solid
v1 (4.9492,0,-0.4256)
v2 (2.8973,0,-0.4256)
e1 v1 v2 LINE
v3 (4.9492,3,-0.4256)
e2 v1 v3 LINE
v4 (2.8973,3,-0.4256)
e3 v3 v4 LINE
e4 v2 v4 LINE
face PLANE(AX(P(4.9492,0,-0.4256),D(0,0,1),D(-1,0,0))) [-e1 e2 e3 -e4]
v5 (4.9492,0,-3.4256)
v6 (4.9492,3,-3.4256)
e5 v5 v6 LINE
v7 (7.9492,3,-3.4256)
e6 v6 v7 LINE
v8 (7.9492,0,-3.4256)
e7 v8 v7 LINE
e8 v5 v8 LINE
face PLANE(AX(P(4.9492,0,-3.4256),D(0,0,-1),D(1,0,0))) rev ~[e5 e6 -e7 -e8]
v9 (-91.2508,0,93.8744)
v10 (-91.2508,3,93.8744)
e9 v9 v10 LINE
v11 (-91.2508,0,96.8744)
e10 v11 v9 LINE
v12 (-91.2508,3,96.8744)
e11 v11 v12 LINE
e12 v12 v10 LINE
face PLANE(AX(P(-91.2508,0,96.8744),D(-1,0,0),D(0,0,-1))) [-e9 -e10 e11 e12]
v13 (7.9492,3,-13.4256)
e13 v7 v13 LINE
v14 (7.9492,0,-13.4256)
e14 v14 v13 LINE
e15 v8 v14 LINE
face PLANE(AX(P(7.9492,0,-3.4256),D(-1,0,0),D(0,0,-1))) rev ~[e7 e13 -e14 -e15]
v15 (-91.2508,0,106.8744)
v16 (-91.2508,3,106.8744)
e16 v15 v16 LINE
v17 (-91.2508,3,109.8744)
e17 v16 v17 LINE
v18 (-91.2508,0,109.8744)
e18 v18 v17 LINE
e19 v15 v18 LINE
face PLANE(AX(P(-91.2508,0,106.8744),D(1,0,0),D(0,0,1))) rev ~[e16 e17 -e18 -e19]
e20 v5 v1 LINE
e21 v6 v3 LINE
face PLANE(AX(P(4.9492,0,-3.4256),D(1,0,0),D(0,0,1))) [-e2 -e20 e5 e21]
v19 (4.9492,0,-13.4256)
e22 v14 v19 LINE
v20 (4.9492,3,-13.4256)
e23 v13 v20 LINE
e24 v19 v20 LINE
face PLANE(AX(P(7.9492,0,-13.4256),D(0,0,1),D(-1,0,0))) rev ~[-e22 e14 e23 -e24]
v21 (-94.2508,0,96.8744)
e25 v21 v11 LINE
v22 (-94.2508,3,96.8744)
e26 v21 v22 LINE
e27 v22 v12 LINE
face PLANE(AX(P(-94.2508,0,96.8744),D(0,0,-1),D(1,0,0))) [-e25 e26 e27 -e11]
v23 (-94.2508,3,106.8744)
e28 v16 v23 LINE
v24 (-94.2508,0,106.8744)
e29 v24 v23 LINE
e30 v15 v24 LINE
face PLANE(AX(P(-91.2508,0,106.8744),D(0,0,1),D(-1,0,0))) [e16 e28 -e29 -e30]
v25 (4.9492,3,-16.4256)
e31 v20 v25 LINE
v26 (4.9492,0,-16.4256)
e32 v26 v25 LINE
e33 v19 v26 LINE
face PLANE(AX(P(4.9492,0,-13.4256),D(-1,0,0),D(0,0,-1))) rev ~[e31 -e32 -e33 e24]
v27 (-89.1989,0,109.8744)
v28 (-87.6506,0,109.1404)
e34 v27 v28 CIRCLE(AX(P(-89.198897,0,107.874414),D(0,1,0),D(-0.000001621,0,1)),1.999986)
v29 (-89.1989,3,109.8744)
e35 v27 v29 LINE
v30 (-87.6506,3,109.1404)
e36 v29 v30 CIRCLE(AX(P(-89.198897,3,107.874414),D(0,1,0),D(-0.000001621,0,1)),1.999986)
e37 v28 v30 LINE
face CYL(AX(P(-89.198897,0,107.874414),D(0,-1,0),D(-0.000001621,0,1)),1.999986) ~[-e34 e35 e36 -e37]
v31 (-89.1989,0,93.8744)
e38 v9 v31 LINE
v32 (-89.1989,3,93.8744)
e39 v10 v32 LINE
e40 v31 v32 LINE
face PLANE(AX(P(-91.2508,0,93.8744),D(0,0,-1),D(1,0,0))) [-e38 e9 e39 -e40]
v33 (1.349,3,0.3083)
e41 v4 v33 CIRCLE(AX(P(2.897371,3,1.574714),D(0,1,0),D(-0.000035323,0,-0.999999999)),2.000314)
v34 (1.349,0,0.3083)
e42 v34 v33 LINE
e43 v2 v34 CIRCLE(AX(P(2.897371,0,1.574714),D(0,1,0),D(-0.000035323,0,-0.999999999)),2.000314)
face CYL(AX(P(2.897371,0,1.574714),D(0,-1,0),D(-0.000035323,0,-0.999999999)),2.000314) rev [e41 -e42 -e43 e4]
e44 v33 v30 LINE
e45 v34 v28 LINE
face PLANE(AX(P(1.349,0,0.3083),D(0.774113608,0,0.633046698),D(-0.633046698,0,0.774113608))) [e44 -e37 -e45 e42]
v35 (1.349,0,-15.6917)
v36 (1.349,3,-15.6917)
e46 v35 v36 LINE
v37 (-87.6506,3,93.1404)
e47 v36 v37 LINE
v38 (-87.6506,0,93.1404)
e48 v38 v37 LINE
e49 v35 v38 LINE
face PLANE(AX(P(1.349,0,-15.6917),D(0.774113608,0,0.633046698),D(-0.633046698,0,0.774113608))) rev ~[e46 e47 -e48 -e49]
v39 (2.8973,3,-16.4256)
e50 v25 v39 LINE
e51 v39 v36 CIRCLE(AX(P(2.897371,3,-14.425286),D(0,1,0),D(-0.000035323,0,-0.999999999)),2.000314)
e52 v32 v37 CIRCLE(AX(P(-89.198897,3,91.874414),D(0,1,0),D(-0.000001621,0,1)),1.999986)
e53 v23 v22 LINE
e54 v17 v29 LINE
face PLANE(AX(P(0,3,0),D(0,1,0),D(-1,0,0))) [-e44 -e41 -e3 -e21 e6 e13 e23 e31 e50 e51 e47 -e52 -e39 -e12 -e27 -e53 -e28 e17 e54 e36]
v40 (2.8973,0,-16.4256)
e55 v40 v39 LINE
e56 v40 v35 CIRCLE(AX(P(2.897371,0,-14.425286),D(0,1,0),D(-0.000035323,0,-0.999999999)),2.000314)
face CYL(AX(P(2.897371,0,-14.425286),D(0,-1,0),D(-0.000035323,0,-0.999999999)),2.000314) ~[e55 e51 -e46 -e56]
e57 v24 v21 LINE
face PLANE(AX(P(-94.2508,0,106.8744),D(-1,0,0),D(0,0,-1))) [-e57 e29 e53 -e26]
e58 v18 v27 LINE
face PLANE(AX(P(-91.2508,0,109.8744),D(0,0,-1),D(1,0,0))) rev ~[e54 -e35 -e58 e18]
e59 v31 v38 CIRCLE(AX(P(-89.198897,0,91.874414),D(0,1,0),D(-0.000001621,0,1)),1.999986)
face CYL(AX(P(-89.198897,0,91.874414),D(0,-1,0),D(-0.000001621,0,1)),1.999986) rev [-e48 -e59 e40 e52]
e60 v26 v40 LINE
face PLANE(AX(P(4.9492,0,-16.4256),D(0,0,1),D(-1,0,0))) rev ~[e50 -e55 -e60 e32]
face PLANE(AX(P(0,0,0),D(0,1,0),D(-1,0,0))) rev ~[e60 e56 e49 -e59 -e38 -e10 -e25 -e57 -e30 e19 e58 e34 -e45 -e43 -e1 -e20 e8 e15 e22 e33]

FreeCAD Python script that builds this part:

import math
import FreeCAD as App
import Part
import Sketcher
from FreeCAD import Vector
Q = App.Units.Quantity

doc = App.newDocument("Part")
body = doc.addObject("PartDesign::Body", "Body")

# Sketch on XZ plane
sketch1 = body.newObject("Sketcher::SketchObject", "Sketch")
sketch1.AttachmentSupport = (doc.getObject("XZ_Plane"), [""])
sketch1.MapMode = "FlatFace"
sketch1.addGeometry([
    Part.LineSegment(Vector(4.9, -0.4, 0), Vector(4.9, -3.4, 0)),  # 0
    Part.LineSegment(Vector(4.9, -3.4, 0), Vector(7.9, -3.4, 0)),  # 1
    Part.LineSegment(Vector(7.9, -3.4, 0), Vector(7.9, -13.4, 0)),  # 2
    Part.LineSegment(Vector(7.9, -13.4, 0), Vector(4.9, -13.4, 0)),  # 3
    Part.LineSegment(Vector(4.9, -13.4, 0), Vector(4.9, -16.4, 0)),  # 4
    Part.LineSegment(Vector(4.9, -16.4, 0), Vector(2.9, -16.4, 0)),  # 5
    Part.ArcOfCircle(Part.Circle(Vector(2.9, -14.4, 0), Vector(0, 0, 1), 2), math.radians(-141), math.radians(-90)),  # 6
    Part.LineSegment(Vector(1.3, -15.7, 0), Vector(-87.7, 93.1, 0)),  # 7
    Part.ArcOfCircle(Part.Circle(Vector(-89.2, 91.9, 0), Vector(0, 0, 1), 2), math.radians(39), math.radians(90)),  # 8
    Part.LineSegment(Vector(-89.2, 93.9, 0), Vector(-91.3, 93.9, 0)),  # 9
    Part.LineSegment(Vector(-91.3, 93.9, 0), Vector(-91.3, 96.9, 0)),  # 10
    Part.LineSegment(Vector(-91.3, 96.9, 0), Vector(-94.3, 96.9, 0)),  # 11
    Part.LineSegment(Vector(-94.3, 96.9, 0), Vector(-94.3, 106.9, 0)),  # 12
    Part.LineSegment(Vector(-94.3, 106.9, 0), Vector(-91.3, 106.9, 0)),  # 13
    Part.LineSegment(Vector(-91.3, 106.9, 0), Vector(-91.3, 109.9, 0)),  # 14
    Part.LineSegment(Vector(-91.3, 109.9, 0), Vector(-89.2, 109.9, 0)),  # 15
    Part.ArcOfCircle(Part.Circle(Vector(-89.2, 107.9, 0), Vector(0, 0, 1), 2), math.radians(39), math.radians(90)),  # 16
    Part.LineSegment(Vector(-87.7, 109.1, 0), Vector(1.3, 0.3, 0)),  # 17
    Part.ArcOfCircle(Part.Circle(Vector(2.9, 1.6, 0), Vector(0, 0, 1), 2), math.radians(-141), math.radians(-90)),  # 18
    Part.LineSegment(Vector(2.9, -0.4, 0), Vector(4.9, -0.4, 0)),  # 19
], False)
sketch1.addConstraint([
    Sketcher.Constraint("Coincident", 0, 2, 1, 1),
    Sketcher.Constraint("Coincident", 1, 2, 2, 1),
    Sketcher.Constraint("Coincident", 2, 2, 3, 1),
    Sketcher.Constraint("Coincident", 3, 2, 4, 1),
    Sketcher.Constraint("Coincident", 4, 2, 5, 1),
    Sketcher.Constraint("Tangent", 5, 2, 6, 2),
    Sketcher.Constraint("Tangent", 6, 1, 7, 1),
    Sketcher.Constraint("Tangent", 7, 2, 8, 1),
    Sketcher.Constraint("Tangent", 8, 2, 9, 1),
    Sketcher.Constraint("Coincident", 9, 2, 10, 1),
    Sketcher.Constraint("Coincident", 10, 2, 11, 1),
    Sketcher.Constraint("Coincident", 11, 2, 12, 1),
    Sketcher.Constraint("Coincident", 12, 2, 13, 1),
    Sketcher.Constraint("Coincident", 13, 2, 14, 1),
    Sketcher.Constraint("Coincident", 14, 2, 15, 1),
    Sketcher.Constraint("Tangent", 15, 2, 16, 2),
    Sketcher.Constraint("Tangent", 16, 1, 17, 1),
    Sketcher.Constraint("Tangent", 17, 2, 18, 1),
    Sketcher.Constraint("Tangent", 18, 2, 19, 1),
    Sketcher.Constraint("Coincident", 19, 2, 0, 1),
    Sketcher.Constraint("Vertical", 0),
    Sketcher.Constraint("Horizontal", 1),
    Sketcher.Constraint("Vertical", 2),
    Sketcher.Constraint("Horizontal", 3),
    Sketcher.Constraint("Vertical", 4),
    Sketcher.Constraint("Horizontal", 5),
    Sketcher.Constraint("Horizontal", 9),
    Sketcher.Constraint("Vertical", 10),
    Sketcher.Constraint("Horizontal", 11),
    Sketcher.Constraint("Vertical", 12),
    Sketcher.Constraint("Horizontal", 13),
    Sketcher.Constraint("Vertical", 14),
    Sketcher.Constraint("Horizontal", 15),
    Sketcher.Constraint("Horizontal", 19),
    Sketcher.Constraint("Equal", 6, 8),
    Sketcher.Constraint("Equal", 8, 16),
    Sketcher.Constraint("Equal", 16, 18),
    Sketcher.Constraint("Parallel", 7, 17),
    Sketcher.Constraint("Vertical", 8, 3, 16, 3),
    Sketcher.Constraint("Vertical", 6, 3, 18, 3),
    Sketcher.Constraint("Vertical", 0, 2, 3, 2),
    Sketcher.Constraint("Vertical", 10, 2, 13, 2),
    Sketcher.Constraint("Equal", 5, 9),
    Sketcher.Constraint("Equal", 3, 11),
    Sketcher.Constraint("Equal", 13, 0),
    Sketcher.Constraint("Equal", 0, 4),
    Sketcher.Constraint("Equal", 4, 10),
    Sketcher.Constraint("Equal", 2, 12),
    Sketcher.Constraint("Radius", 6, Q("2 mm")),
    Sketcher.Constraint("DistanceX", 1, 1, 1, 2, Q("3 mm")),
    Sketcher.Constraint("DistanceY", 2, 2, 2, 1, Q("10 mm")),
    Sketcher.Constraint("DistanceY", 6, 3, 8, 3, Q("106.3 mm")),
    Sketcher.Constraint("DistanceX", 5, 2, 5, 1, Q("2.052 mm")),
    Sketcher.Constraint("DistanceX", 8, 3, -1, 1, Q("89.199 mm")),
    Sketcher.Constraint("DistanceX", -1, 1, 6, 1, Q("1.349 mm")),
    Sketcher.Constraint("DistanceY", 6, 3, -1, 1, Q("14.4256 mm")),
])
pad1 = body.newObject("PartDesign::Pad", "Pad")
pad1.Profile = sketch1
pad1.Length = 3
pad1.Reversed = True

doc.recompute()
